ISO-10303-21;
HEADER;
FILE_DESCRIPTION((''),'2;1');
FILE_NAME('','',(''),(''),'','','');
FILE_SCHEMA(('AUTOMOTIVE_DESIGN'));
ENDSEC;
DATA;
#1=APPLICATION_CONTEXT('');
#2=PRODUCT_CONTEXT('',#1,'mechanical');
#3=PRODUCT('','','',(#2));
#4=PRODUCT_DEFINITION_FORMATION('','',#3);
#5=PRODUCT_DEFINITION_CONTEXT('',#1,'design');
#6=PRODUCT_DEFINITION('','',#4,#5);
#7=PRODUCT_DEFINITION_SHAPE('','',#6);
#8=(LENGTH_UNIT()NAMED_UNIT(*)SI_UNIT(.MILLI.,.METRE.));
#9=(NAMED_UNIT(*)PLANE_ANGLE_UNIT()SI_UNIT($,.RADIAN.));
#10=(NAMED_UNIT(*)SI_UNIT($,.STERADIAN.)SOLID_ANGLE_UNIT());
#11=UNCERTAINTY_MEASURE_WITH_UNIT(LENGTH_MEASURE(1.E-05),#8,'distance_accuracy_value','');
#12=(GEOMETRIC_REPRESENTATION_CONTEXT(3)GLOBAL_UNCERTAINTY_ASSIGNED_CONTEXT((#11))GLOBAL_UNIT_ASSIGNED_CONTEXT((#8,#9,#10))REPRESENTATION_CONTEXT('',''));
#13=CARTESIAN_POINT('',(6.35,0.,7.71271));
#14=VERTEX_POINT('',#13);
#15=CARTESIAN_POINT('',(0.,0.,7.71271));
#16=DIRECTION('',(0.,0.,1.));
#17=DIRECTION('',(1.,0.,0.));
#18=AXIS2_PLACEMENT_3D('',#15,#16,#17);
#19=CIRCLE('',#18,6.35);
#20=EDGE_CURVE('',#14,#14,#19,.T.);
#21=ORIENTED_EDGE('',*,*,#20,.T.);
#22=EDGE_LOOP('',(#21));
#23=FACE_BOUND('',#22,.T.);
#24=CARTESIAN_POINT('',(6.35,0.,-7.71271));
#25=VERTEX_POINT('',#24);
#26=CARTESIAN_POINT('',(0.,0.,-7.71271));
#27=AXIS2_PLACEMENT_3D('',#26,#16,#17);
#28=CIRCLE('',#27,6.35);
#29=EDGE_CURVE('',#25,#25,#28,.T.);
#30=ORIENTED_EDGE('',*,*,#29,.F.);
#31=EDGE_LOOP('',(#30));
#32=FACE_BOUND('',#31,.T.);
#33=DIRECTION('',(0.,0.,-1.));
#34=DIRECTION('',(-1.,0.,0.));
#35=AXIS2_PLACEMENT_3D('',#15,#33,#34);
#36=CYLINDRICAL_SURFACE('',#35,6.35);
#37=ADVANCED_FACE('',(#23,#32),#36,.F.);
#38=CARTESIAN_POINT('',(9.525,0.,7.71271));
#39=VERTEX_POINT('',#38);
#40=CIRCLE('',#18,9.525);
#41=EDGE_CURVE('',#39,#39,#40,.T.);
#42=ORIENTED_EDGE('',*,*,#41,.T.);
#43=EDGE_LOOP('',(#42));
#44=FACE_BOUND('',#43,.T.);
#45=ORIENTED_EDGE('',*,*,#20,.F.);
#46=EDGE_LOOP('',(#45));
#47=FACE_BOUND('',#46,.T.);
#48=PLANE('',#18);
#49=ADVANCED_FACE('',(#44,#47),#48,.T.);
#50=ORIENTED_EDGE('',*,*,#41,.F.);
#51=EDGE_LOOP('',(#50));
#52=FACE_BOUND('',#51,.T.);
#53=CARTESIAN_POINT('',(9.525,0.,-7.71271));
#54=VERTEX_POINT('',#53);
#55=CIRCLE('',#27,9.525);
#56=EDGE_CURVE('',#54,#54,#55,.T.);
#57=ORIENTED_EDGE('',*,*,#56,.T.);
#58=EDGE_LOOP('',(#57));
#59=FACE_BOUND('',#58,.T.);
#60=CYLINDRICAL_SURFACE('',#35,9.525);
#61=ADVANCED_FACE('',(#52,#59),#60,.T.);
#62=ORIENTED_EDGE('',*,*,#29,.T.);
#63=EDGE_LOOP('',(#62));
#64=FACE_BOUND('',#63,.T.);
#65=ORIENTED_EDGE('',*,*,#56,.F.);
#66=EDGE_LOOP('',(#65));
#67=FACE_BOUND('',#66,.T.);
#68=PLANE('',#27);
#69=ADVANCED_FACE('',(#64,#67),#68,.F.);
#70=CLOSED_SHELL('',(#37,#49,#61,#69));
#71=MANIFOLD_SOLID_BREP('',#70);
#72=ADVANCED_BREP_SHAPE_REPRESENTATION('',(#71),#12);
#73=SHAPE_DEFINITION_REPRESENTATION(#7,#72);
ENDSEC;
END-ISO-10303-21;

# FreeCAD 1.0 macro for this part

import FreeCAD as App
import Part
import Sketcher

V = App.Vector
Q = App.Units.Quantity

doc = App.newDocument("Part")
body = doc.addObject("PartDesign::Body", "Body")

sketch1 = body.newObject("Sketcher::SketchObject", "Sketch")
sketch1.AttachmentSupport = (doc.getObject("XY_Plane"), [""])
sketch1.MapMode = "FlatFace"
sketch1.addGeometry([
    Part.Circle(V(0, 0, 0), V(0, 0, 1), 10),
    Part.Circle(V(0, 0, 0), V(0, 0, 1), 6),
], False)
sketch1.addConstraint([
    Sketcher.Constraint("Coincident", 0, 3, -1, 1),
    Sketcher.Constraint("Coincident", 1, 3, -1, 1),
    Sketcher.Constraint("Diameter", 1, Q("0.5 in")),
    Sketcher.Constraint("Diameter", 0, Q("0.75 in")),
])
pad1 = body.newObject("PartDesign::Pad", "Pad")
pad1.Profile = sketch1
pad1.Length = Q("0.6073 in")
pad1.Midplane = True

doc.recompute()
